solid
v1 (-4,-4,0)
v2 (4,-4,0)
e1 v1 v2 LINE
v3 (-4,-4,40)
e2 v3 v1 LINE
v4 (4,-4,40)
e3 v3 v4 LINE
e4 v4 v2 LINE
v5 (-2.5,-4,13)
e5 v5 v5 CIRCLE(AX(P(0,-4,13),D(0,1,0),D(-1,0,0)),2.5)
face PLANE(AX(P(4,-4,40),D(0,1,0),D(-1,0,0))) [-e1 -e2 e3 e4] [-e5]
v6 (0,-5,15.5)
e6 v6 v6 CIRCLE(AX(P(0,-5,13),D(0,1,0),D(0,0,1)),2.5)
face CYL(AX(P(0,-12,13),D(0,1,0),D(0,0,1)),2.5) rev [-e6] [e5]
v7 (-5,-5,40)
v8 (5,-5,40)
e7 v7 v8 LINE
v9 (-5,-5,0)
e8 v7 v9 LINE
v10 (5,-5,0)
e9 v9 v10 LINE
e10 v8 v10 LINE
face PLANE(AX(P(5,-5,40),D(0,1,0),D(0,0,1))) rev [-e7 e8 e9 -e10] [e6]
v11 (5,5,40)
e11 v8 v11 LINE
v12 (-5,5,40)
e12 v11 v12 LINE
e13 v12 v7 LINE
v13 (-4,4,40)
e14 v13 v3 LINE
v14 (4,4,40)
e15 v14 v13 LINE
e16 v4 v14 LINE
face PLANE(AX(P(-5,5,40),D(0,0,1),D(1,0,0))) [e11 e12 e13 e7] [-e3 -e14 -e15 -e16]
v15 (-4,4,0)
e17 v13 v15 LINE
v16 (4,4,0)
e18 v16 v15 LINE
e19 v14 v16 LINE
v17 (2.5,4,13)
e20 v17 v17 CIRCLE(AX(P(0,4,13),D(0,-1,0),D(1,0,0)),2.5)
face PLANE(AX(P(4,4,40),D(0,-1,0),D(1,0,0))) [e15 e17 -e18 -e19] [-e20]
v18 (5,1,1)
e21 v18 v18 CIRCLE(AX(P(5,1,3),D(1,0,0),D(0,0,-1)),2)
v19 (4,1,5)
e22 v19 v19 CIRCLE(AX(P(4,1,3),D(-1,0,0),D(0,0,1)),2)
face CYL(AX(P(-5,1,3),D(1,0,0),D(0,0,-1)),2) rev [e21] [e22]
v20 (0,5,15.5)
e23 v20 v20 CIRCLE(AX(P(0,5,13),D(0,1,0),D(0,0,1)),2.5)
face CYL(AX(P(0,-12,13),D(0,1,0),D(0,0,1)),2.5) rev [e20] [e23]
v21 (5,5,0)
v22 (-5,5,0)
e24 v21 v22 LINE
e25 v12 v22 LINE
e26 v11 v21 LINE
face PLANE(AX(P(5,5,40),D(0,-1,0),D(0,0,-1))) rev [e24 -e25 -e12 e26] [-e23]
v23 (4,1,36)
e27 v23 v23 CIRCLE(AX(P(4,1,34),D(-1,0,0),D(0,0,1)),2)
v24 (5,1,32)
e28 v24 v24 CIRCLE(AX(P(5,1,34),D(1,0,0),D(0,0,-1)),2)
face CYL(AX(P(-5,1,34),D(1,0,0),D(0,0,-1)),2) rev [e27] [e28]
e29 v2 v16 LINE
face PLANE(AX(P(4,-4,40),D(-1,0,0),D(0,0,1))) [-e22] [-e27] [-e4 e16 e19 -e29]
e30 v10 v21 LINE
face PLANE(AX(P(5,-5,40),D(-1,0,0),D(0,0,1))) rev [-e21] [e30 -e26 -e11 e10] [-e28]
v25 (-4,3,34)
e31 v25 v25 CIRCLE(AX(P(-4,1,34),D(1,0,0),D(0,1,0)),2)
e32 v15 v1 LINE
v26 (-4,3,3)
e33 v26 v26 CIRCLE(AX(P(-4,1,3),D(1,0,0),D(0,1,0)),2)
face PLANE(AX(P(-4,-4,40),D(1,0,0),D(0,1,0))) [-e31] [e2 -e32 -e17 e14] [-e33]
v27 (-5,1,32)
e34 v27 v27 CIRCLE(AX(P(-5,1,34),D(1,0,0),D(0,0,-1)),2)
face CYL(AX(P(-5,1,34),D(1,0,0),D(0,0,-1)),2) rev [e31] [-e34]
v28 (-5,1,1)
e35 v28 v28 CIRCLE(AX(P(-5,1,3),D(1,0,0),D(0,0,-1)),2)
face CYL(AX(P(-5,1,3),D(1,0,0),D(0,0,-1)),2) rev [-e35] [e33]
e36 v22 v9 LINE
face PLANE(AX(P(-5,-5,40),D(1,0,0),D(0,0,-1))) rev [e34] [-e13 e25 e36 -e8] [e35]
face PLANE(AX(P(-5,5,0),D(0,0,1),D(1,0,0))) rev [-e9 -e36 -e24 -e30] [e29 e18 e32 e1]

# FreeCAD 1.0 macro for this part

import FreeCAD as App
import Part
import Sketcher
from FreeCAD import Vector
Q = App.Units.Quantity

doc = App.newDocument("Part")
body = doc.addObject("PartDesign::Body", "Body")

sketch1 = body.newObject("Sketcher::SketchObject", "Sketch")
sketch1.AttachmentSupport = (doc.getObject("XY_Plane"), [""])
sketch1.MapMode = "FlatFace"
sketch1.addGeometry([
    Part.LineSegment(Vector(-5, 5, 0), Vector(-5, -5, 0)),
    Part.LineSegment(Vector(-5, -5, 0), Vector(5, -5, 0)),
    Part.LineSegment(Vector(5, -5, 0), Vector(5, 5, 0)),
    Part.LineSegment(Vector(5, 5, 0), Vector(-5, 5, 0)),
    Part.LineSegment(Vector(4, -4, 0), Vector(-4, -4, 0)),
    Part.LineSegment(Vector(-4, -4, 0), Vector(-4, 4, 0)),
    Part.LineSegment(Vector(-4, 4, 0), Vector(4, 4, 0)),
    Part.LineSegment(Vector(4, 4, 0), Vector(4, -4, 0)),
], False)
sketch1.addConstraint([
    Sketcher.Constraint("Coincident", 0, 2, 1, 1),
    Sketcher.Constraint("Coincident", 1, 2, 2, 1),
    Sketcher.Constraint("Coincident", 2, 2, 3, 1),
    Sketcher.Constraint("Coincident", 3, 2, 0, 1),
    Sketcher.Constraint("Coincident", 4, 2, 5, 1),
    Sketcher.Constraint("Coincident", 5, 2, 6, 1),
    Sketcher.Constraint("Coincident", 6, 2, 7, 1),
    Sketcher.Constraint("Coincident", 7, 2, 4, 1),
    Sketcher.Constraint("Vertical", 0),
    Sketcher.Constraint("Horizontal", 1),
    Sketcher.Constraint("Vertical", 2),
    Sketcher.Constraint("Horizontal", 3),
    Sketcher.Constraint("Horizontal", 4),
    Sketcher.Constraint("Vertical", 5),
    Sketcher.Constraint("Horizontal", 6),
    Sketcher.Constraint("Vertical", 7),
    Sketcher.Constraint("Symmetric", 0, 2, 2, 2, -1, 1),
    Sketcher.Constraint("Symmetric", 4, 2, 6, 2, -1, 1),
    Sketcher.Constraint("Equal", 3, 0),
    Sketcher.Constraint("Equal", 6, 5),
    Sketcher.Constraint("DistanceX", 1, 1, 1, 2, Q("10 mm")),
    Sketcher.Constraint("DistanceX", 4, 2, 4, 1, Q("8 mm")),
])
pad1 = body.newObject("PartDesign::Pad", "Pad")
pad1.Profile = sketch1
pad1.Length = 40

sketch2 = body.newObject("Sketcher::SketchObject", "Sketch001")
sketch2.AttachmentSupport = (doc.getObject("YZ_Plane"), [""])
sketch2.MapMode = "FlatFace"
sketch2.AttachmentOffset = App.Placement(Vector(0, 0, 5), App.Rotation())
sketch2.addGeometry([
    Part.Circle(Vector(1, 34, 0), Vector(0, 0, 1), 2),
    Part.Circle(Vector(1, 3, 0), Vector(0, 0, 1), 2),
], False)
sketch2.addConstraint([
    Sketcher.Constraint("Equal", 0, 1),
    Sketcher.Constraint("Vertical", 0, 3, 1, 3),
    Sketcher.Constraint("Diameter", 0, Q("4 mm")),
    Sketcher.Constraint("DistanceX", -1, 1, 0, 3, Q("1 mm")),
    Sketcher.Constraint("DistanceY", -1, 1, 0, 3, Q("34 mm")),
    Sketcher.Constraint("DistanceY", -1, 1, 1, 3, Q("3 mm")),
])
pocket1 = body.newObject("PartDesign::Pocket", "Pocket")
pocket1.Profile = sketch2
pocket1.Type = "ThroughAll"

sketch3 = body.newObject("Sketcher::SketchObject", "Sketch002")
sketch3.AttachmentSupport = (doc.getObject("XZ_Plane"), [""])
sketch3.MapMode = "FlatFace"
sketch3.AttachmentOffset = App.Placement(Vector(0, 0, -5), App.Rotation())
sketch3.addGeometry(Part.Circle(Vector(0, 13, 0), Vector(0, 0, 1), 2.5), False)
sketch3.addConstraint([
    Sketcher.Constraint("PointOnObject", 0, 3, -2),
    Sketcher.Constraint("Diameter", 0, Q("5 mm")),
    Sketcher.Constraint("DistanceY", -1, 1, 0, 3, Q("13 mm")),
])
pocket2 = body.newObject("PartDesign::Pocket", "Pocket001")
pocket2.Profile = sketch3
pocket2.Length = 17
pocket2.Reversed = True

doc.recompute()
